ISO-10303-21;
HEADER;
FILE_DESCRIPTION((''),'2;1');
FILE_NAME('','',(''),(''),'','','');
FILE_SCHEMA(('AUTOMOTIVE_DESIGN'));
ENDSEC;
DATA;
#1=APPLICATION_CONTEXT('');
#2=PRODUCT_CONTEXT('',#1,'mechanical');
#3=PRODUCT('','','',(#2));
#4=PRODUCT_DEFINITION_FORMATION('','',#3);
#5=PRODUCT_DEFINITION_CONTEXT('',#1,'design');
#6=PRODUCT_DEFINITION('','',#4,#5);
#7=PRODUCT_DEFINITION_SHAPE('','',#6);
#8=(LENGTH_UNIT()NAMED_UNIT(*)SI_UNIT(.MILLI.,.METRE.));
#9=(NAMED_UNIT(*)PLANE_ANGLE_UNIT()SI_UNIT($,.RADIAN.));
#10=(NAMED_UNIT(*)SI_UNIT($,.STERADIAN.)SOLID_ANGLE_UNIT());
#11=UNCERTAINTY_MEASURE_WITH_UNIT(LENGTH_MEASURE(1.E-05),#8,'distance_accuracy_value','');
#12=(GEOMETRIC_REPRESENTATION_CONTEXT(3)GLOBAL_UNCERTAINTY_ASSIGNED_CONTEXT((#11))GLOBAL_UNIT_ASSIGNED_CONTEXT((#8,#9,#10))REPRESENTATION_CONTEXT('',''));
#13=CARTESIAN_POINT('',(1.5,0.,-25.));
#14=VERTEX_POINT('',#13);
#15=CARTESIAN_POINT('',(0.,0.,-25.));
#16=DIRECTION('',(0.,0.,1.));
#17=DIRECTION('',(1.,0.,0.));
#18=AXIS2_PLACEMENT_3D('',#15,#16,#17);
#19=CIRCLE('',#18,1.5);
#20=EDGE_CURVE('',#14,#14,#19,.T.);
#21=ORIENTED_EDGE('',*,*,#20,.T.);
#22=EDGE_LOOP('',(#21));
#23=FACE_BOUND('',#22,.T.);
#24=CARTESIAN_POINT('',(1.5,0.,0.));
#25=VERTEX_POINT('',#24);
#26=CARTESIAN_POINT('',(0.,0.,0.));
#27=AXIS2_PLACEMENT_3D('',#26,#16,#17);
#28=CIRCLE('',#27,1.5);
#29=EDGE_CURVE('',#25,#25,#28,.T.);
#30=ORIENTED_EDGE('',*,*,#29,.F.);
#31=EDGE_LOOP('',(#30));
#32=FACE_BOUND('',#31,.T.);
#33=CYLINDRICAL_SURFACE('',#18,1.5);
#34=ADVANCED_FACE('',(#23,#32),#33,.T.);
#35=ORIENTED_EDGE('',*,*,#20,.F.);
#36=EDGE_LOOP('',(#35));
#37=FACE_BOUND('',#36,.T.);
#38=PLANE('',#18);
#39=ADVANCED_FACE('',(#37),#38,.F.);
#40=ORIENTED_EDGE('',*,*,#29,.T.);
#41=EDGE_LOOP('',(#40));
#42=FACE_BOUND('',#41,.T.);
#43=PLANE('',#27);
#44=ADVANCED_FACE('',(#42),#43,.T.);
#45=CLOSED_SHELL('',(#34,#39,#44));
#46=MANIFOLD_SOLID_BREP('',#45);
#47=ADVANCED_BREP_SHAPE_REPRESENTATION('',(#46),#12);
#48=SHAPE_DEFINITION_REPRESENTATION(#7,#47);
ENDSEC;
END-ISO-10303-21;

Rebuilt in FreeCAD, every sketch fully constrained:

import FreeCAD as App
import Part
import Sketcher
from FreeCAD import Vector
Q = App.Units.Quantity

doc = App.newDocument("Part")
body = doc.addObject("PartDesign::Body", "Body")

# Sketch on XY plane
sketch1 = doc.addObject("Sketcher::SketchObject", "Sketch")
body.addObject(sketch1)
sketch1.AttachmentSupport = (doc.XY_Plane, [""])
sketch1.MapMode = "FlatFace"
sketch1.addGeometry(Part.Circle(Vector(0, 0, 0), Vector(0, 0, 1), 1.5), False)
sketch1.addConstraint(Sketcher.Constraint("Coincident", 0, 3, -1, 1))
sketch1.addConstraint(Sketcher.Constraint("Diameter", 0, Q("3 mm")))
pad1 = doc.addObject("PartDesign::Pad", "Pad")
body.addObject(pad1)
pad1.Profile = sketch1
pad1.Length = 25
pad1.Reversed = True

doc.recompute()
